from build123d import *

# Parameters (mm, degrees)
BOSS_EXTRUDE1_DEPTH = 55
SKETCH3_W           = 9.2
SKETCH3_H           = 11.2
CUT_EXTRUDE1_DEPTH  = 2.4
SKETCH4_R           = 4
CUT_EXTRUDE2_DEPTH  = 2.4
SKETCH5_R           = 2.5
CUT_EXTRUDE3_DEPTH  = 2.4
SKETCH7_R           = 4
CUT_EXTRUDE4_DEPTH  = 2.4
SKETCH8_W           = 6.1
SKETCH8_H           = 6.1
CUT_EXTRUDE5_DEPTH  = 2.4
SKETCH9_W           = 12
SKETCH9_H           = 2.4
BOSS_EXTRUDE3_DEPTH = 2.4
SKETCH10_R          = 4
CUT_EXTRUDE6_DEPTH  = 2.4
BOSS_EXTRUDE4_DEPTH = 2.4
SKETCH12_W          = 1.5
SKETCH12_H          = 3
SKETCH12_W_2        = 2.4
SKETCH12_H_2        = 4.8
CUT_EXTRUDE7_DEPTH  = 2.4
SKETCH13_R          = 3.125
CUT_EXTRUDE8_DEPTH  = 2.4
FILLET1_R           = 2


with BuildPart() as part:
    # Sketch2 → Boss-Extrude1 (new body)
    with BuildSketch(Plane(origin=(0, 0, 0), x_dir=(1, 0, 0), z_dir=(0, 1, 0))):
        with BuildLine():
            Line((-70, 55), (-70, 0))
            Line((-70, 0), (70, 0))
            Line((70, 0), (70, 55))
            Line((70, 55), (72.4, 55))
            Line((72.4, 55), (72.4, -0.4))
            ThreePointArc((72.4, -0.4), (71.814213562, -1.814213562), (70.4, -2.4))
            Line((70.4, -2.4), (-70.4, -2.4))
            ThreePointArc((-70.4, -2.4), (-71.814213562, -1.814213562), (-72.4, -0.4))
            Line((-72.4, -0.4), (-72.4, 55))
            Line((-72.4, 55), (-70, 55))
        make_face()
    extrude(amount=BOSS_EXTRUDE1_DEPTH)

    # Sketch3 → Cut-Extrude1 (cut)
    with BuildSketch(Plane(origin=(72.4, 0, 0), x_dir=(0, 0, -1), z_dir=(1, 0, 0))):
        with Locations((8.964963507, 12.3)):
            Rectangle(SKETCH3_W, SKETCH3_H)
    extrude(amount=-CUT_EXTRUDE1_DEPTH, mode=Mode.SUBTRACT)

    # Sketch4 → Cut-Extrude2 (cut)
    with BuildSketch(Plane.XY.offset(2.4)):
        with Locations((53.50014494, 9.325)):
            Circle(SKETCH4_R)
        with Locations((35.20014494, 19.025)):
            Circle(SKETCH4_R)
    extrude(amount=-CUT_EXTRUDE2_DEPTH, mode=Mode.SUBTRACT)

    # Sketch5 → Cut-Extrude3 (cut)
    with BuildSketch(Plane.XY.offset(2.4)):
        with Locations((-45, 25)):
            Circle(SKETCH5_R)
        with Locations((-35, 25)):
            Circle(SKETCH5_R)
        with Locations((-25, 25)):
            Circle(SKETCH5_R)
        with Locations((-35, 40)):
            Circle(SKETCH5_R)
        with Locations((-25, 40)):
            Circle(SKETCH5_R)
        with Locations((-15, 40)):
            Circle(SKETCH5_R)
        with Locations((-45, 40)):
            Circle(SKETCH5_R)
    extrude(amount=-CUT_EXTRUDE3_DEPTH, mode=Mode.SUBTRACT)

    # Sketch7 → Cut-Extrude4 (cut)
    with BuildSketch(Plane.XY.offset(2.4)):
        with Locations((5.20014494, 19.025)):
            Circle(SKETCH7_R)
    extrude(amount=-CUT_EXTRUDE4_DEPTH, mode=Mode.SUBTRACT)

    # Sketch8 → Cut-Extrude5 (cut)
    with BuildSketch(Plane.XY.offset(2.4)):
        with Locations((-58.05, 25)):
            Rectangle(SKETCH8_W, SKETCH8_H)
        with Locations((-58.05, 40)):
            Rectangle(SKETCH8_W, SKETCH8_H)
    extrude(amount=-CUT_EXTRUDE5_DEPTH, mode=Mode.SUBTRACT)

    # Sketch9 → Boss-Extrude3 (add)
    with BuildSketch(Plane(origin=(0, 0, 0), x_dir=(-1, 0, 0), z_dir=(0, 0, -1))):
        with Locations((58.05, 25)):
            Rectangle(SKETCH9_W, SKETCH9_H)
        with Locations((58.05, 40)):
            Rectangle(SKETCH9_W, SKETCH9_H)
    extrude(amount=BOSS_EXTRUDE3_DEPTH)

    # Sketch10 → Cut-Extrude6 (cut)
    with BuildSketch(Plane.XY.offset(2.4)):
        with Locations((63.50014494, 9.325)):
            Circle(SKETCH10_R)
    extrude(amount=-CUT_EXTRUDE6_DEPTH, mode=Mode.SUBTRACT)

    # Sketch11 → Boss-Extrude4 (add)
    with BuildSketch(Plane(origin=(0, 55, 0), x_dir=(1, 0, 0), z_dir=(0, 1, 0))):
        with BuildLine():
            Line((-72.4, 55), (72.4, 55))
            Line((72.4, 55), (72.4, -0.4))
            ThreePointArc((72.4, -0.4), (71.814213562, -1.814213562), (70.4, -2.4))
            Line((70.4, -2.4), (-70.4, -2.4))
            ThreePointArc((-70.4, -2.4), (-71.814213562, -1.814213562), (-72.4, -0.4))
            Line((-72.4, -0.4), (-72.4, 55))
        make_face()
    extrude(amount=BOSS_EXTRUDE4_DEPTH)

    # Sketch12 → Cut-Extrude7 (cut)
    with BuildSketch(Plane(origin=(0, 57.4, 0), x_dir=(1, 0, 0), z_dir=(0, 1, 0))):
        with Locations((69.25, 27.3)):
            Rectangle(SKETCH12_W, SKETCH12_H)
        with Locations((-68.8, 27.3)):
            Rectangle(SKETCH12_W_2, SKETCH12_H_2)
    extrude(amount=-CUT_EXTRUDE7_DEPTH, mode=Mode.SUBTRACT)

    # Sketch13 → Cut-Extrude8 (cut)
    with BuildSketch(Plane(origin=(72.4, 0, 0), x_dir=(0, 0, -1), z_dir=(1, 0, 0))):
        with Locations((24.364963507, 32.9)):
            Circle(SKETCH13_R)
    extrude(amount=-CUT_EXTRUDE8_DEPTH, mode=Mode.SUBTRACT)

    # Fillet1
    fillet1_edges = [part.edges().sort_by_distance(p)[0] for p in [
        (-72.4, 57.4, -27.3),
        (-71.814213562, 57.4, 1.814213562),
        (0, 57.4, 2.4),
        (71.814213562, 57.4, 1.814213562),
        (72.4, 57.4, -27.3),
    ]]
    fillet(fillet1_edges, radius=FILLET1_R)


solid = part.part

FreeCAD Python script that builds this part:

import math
import FreeCAD as App
import Part
import Sketcher
Q = App.Units.Quantity


def edges_at(feature, points):
    """Names of the edges that pass closest to the given points."""
    edges = feature.Shape.Edges
    near = lambda p: min(range(len(edges)), key=lambda i: edges[i].distToShape(Part.Vertex(*p))[0])
    return sorted({f"Edge{near(p) + 1}" for p in points})


def add_polygon(sketch, points):
    """Adds a closed chain of lines whose ends are joined by coincident constraints."""
    first, n = sketch.GeometryCount, len(points)
    for a, b in zip(points, points[1:] + points[:1]):
        sketch.addGeometry(Part.LineSegment(App.Vector(*a, 0), App.Vector(*b, 0)), False)
    for i in range(n):
        sketch.addConstraint(Sketcher.Constraint("Coincident", first + i, 2, first + (i + 1) % n, 1))

doc = App.newDocument("Part")
body = doc.addObject("PartDesign::Body", "Body")

sketch1 = body.newObject("Sketcher::SketchObject", "Sketch")
sketch1.AttachmentSupport = (doc.getObject("XZ_Plane"), [""])
sketch1.MapMode = "FlatFace"
sketch1.addGeometry(Part.LineSegment(App.Vector(-70, 0, 0), App.Vector(-70, -55, 0)), False)
sketch1.addGeometry(Part.LineSegment(App.Vector(-70, -55, 0), App.Vector(-72.4, -55, 0)), False)
sketch1.addGeometry(Part.LineSegment(App.Vector(-72.4, -55, 0), App.Vector(-72.4, 0.4, 0)), False)
sketch1.addGeometry(Part.ArcOfCircle(Part.Circle(App.Vector(-70.4, 0.4, 0), App.Vector(0, 0, 1), 2), math.radians(90), math.radians(180)), False)
sketch1.addGeometry(Part.LineSegment(App.Vector(-70.4, 2.4, 0), App.Vector(70.4, 2.4, 0)), False)
sketch1.addGeometry(Part.ArcOfCircle(Part.Circle(App.Vector(70.4, 0.4, 0), App.Vector(0, 0, 1), 2), math.radians(0), math.radians(90)), False)
sketch1.addGeometry(Part.LineSegment(App.Vector(72.4, 0.4, 0), App.Vector(72.4, -55, 0)), False)
sketch1.addGeometry(Part.LineSegment(App.Vector(72.4, -55, 0), App.Vector(70, -55, 0)), False)
sketch1.addGeometry(Part.LineSegment(App.Vector(70, -55, 0), App.Vector(70, 0, 0)), False)
sketch1.addGeometry(Part.LineSegment(App.Vector(70, 0, 0), App.Vector(-70, 0, 0)), False)
sketch1.addConstraint(Sketcher.Constraint("Coincident", 0, 2, 1, 1))
sketch1.addConstraint(Sketcher.Constraint("Coincident", 1, 2, 2, 1))
sketch1.addConstraint(Sketcher.Constraint("Tangent", 2, 2, 3, 2))
sketch1.addConstraint(Sketcher.Constraint("Tangent", 3, 1, 4, 1))
sketch1.addConstraint(Sketcher.Constraint("Tangent", 4, 2, 5, 2))
sketch1.addConstraint(Sketcher.Constraint("Tangent", 5, 1, 6, 1))
sketch1.addConstraint(Sketcher.Constraint("Coincident", 6, 2, 7, 1))
sketch1.addConstraint(Sketcher.Constraint("Coincident", 7, 2, 8, 1))
sketch1.addConstraint(Sketcher.Constraint("Coincident", 8, 2, 9, 1))
sketch1.addConstraint(Sketcher.Constraint("Coincident", 9, 2, 0, 1))
sketch1.addConstraint(Sketcher.Constraint("Vertical", 0))
sketch1.addConstraint(Sketcher.Constraint("Horizontal", 1))
sketch1.addConstraint(Sketcher.Constraint("Vertical", 2))
sketch1.addConstraint(Sketcher.Constraint("Horizontal", 4))
sketch1.addConstraint(Sketcher.Constraint("Vertical", 6))
sketch1.addConstraint(Sketcher.Constraint("Horizontal", 7))
sketch1.addConstraint(Sketcher.Constraint("Vertical", 8))
sketch1.addConstraint(Sketcher.Constraint("Horizontal", 9))
sketch1.addConstraint(Sketcher.Constraint("Equal", 3, 5))
sketch1.addConstraint(Sketcher.Constraint("Symmetric", 8, 2, 9, 2, -1, 1))
sketch1.addConstraint(Sketcher.Constraint("Symmetric", 1, 2, 6, 2, -2))
sketch1.addConstraint(Sketcher.Constraint("Radius", 3, Q("2 mm")))
sketch1.addConstraint(Sketcher.Constraint("DistanceX", 9, 2, 9, 1, Q("140 mm")))
sketch1.addConstraint(Sketcher.Constraint("DistanceY", 0, 2, 0, 1, Q("55 mm")))
sketch1.addConstraint(Sketcher.Constraint("DistanceX", 1, 2, 1, 1, Q("2.4 mm")))
sketch1.addConstraint(Sketcher.Constraint("DistanceY", 2, 1, 2, 2, Q("55.4 mm")))
pad1 = body.newObject("PartDesign::Pad", "Pad")
pad1.Profile = sketch1
pad1.Length = 55
pad1.Reversed = True

sketch2 = body.newObject("Sketcher::SketchObject", "Sketch001")
sketch2.AttachmentSupport = (doc.getObject("YZ_Plane"), [""])
sketch2.MapMode = "FlatFace"
sketch2.AttachmentOffset = App.Placement(App.Vector(0, 0, 72.4), App.Rotation())
add_polygon(sketch2, [(18, -4), (7, -4), (7, -14), (18, -14)])
sketch2.addConstraint(Sketcher.Constraint("Horizontal", 0))
sketch2.addConstraint(Sketcher.Constraint("Vertical", 1))
sketch2.addConstraint(Sketcher.Constraint("Horizontal", 2))
sketch2.addConstraint(Sketcher.Constraint("Vertical", 3))
sketch2.addConstraint(Sketcher.Constraint("DistanceX", 0, 2, 0, 1, Q("11.2 mm")))
sketch2.addConstraint(Sketcher.Constraint("DistanceY", 1, 2, 1, 1, Q("9.2 mm")))
sketch2.addConstraint(Sketcher.Constraint("DistanceX", -1, 1, 0, 2, Q("6.7 mm")))
sketch2.addConstraint(Sketcher.Constraint("DistanceY", 0, 2, -1, 1, Q("4.364964 mm")))
pocket1 = body.newObject("PartDesign::Pocket", "Pocket")
pocket1.Profile = sketch2
pocket1.Length = 2.4

sketch3 = body.newObject("Sketcher::SketchObject", "Sketch002")
sketch3.AttachmentSupport = (doc.getObject("XY_Plane"), [""])
sketch3.MapMode = "FlatFace"
sketch3.AttachmentOffset = App.Placement(App.Vector(0, 0, 2.4), App.Rotation())
sketch3.addGeometry(Part.Circle(App.Vector(53.5, 9.3, 0), App.Vector(0, 0, 1), 4), False)
sketch3.addGeometry(Part.Circle(App.Vector(35.2, 19, 0), App.Vector(0, 0, 1), 4), False)
sketch3.addConstraint(Sketcher.Constraint("Equal", 0, 1))
sketch3.addConstraint(Sketcher.Constraint("Diameter", 0, Q("8 mm")))
sketch3.addConstraint(Sketcher.Constraint("DistanceX", 1, 3, 0, 3, Q("18.3 mm")))
sketch3.addConstraint(Sketcher.Constraint("DistanceY", 0, 3, 1, 3, Q("9.7 mm")))
sketch3.addConstraint(Sketcher.Constraint("DistanceY", -1, 1, 0, 3, Q("9.325 mm")))
sketch3.addConstraint(Sketcher.Constraint("DistanceX", -1, 1, 0, 3, Q("53.500145 mm")))
pocket2 = body.newObject("PartDesign::Pocket", "Pocket001")
pocket2.Profile = sketch3
pocket2.Length = 2.4

sketch4 = body.newObject("Sketcher::SketchObject", "Sketch003")
sketch4.AttachmentSupport = (doc.getObject("XY_Plane"), [""])
sketch4.MapMode = "FlatFace"
sketch4.AttachmentOffset = App.Placement(App.Vector(0, 0, 2.4), App.Rotation())
sketch4.addGeometry(Part.Circle(App.Vector(-45, 25, 0), App.Vector(0, 0, 1), 2.5), False)
sketch4.addGeometry(Part.Circle(App.Vector(-35, 25, 0), App.Vector(0, 0, 1), 2.5), False)
sketch4.addGeometry(Part.Circle(App.Vector(-25, 25, 0), App.Vector(0, 0, 1), 2.5), False)
sketch4.addGeometry(Part.Circle(App.Vector(-35, 40, 0), App.Vector(0, 0, 1), 2.5), False)
sketch4.addGeometry(Part.Circle(App.Vector(-25, 40, 0), App.Vector(0, 0, 1), 2.5), False)
sketch4.addGeometry(Part.Circle(App.Vector(-15, 40, 0), App.Vector(0, 0, 1), 2.5), False)
sketch4.addGeometry(Part.Circle(App.Vector(-45, 40, 0), App.Vector(0, 0, 1), 2.5), False)
sketch4.addConstraint(Sketcher.Constraint("Equal", 0, 1))
sketch4.addConstraint(Sketcher.Constraint("Equal", 1, 2))
sketch4.addConstraint(Sketcher.Constraint("Equal", 2, 3))
sketch4.addConstraint(Sketcher.Constraint("Equal", 3, 4))
sketch4.addConstraint(Sketcher.Constraint("Equal", 4, 5))
sketch4.addConstraint(Sketcher.Constraint("Equal", 5, 6))
sketch4.addConstraint(Sketcher.Constraint("Horizontal", 0, 3, 1, 3))
sketch4.addConstraint(Sketcher.Constraint("Horizontal", 1, 3, 2, 3))
sketch4.addConstraint(Sketcher.Constraint("Horizontal", 3, 3, 4, 3))
sketch4.addConstraint(Sketcher.Constraint("Horizontal", 4, 3, 5, 3))
sketch4.addConstraint(Sketcher.Constraint("Horizontal", 5, 3, 6, 3))
sketch4.addConstraint(Sketcher.Constraint("Vertical", 1, 3, 3, 3))
sketch4.addConstraint(Sketcher.Constraint("Vertical", 2, 3, 4, 3))
sketch4.addConstraint(Sketcher.Constraint("Vertical", 0, 3, 6, 3))
sketch4.addConstraint(Sketcher.Constraint("Diameter", 0, Q("5 mm")))
sketch4.addConstraint(Sketcher.Constraint("DistanceX", 0, 3, -1, 1, Q("45 mm")))
sketch4.addConstraint(Sketcher.Constraint("DistanceY", -1, 1, 0, 3, Q("25 mm")))
sketch4.addConstraint(Sketcher.Constraint("DistanceX", 1, 3, -1, 1, Q("35 mm")))
sketch4.addConstraint(Sketcher.Constraint("DistanceX", 2, 3, -1, 1, Q("25 mm")))
sketch4.addConstraint(Sketcher.Constraint("DistanceY", -1, 1, 3, 3, Q("40 mm")))
sketch4.addConstraint(Sketcher.Constraint("DistanceX", 5, 3, -1, 1, Q("15 mm")))
pocket3 = body.newObject("PartDesign::Pocket", "Pocket002")
pocket3.Profile = sketch4
pocket3.Length = 2.4

sketch5 = body.newObject("Sketcher::SketchObject", "Sketch004")
sketch5.AttachmentSupport = (doc.getObject("XY_Plane"), [""])
sketch5.MapMode = "FlatFace"
sketch5.AttachmentOffset = App.Placement(App.Vector(0, 0, 2.4), App.Rotation())
sketch5.addGeometry(Part.Circle(App.Vector(5.2, 19, 0), App.Vector(0, 0, 1), 4), False)
sketch5.addConstraint(Sketcher.Constraint("Diameter", 0, Q("8 mm")))
sketch5.addConstraint(Sketcher.Constraint("DistanceY", -1, 1, 0, 3, Q("19.025 mm")))
sketch5.addConstraint(Sketcher.Constraint("DistanceX", -1, 1, 0, 3, Q("5.200145 mm")))
pocket4 = body.newObject("PartDesign::Pocket", "Pocket003")
pocket4.Profile = sketch5
pocket4.Length = 2.4

sketch6 = body.newObject("Sketcher::SketchObject", "Sketch005")
sketch6.AttachmentSupport = (doc.getObject("XY_Plane"), [""])
sketch6.MapMode = "FlatFace"
sketch6.AttachmentOffset = App.Placement(App.Vector(0, 0, 2.4), App.Rotation())
add_polygon(sketch6, [(-61, 28), (-61, 22), (-55, 22), (-55, 28)])
add_polygon(sketch6, [(-61, 43), (-61, 37), (-55, 37), (-55, 43)])
sketch6.addConstraint(Sketcher.Constraint("Vertical", 0))
sketch6.addConstraint(Sketcher.Constraint("Horizontal", 1))
sketch6.addConstraint(Sketcher.Constraint("Vertical", 2))
sketch6.addConstraint(Sketcher.Constraint("Horizontal", 3))
sketch6.addConstraint(Sketcher.Constraint("Vertical", 4))
sketch6.addConstraint(Sketcher.Constraint("Horizontal", 5))
sketch6.addConstraint(Sketcher.Constraint("Vertical", 6))
sketch6.addConstraint(Sketcher.Constraint("Horizontal", 7))
sketch6.addConstraint(Sketcher.Constraint("Vertical", 3, 2, 4, 2))
sketch6.addConstraint(Sketcher.Constraint("Vertical", 2, 2, 5, 2))
sketch6.addConstraint(Sketcher.Constraint("Equal", 7, 0))
sketch6.addConstraint(Sketcher.Constraint("Equal", 2, 4))
sketch6.addConstraint(Sketcher.Constraint("DistanceX", 1, 1, 1, 2, Q("6.1 mm")))
sketch6.addConstraint(Sketcher.Constraint("DistanceX", 1, 2, -1, 1, Q("55 mm")))
sketch6.addConstraint(Sketcher.Constraint("DistanceY", 0, 2, 4, 2, Q("15 mm")))
sketch6.addConstraint(Sketcher.Constraint("DistanceY", -1, 1, 0, 2, Q("21.95 mm")))
pocket5 = body.newObject("PartDesign::Pocket", "Pocket004")
pocket5.Profile = sketch6
pocket5.Length = 2.4

sketch7 = body.newObject("Sketcher::SketchObject", "Sketch006")
sketch7.AttachmentSupport = (doc.getObject("XY_Plane"), [""])
sketch7.MapMode = "FlatFace"
add_polygon(sketch7, [(-52, 26.2), (-52, 23.8), (-64, 23.8), (-64, 26.2)])
add_polygon(sketch7, [(-52, 41.2), (-52, 38.8), (-64, 38.8), (-64, 41.2)])
sketch7.addConstraint(Sketcher.Constraint("Vertical", 0))
sketch7.addConstraint(Sketcher.Constraint("Horizontal", 1))
sketch7.addConstraint(Sketcher.Constraint("Vertical", 2))
sketch7.addConstraint(Sketcher.Constraint("Horizontal", 3))
sketch7.addConstraint(Sketcher.Constraint("Vertical", 4))
sketch7.addConstraint(Sketcher.Constraint("Horizontal", 5))
sketch7.addConstraint(Sketcher.Constraint("Vertical", 6))
sketch7.addConstraint(Sketcher.Constraint("Horizontal", 7))
sketch7.addConstraint(Sketcher.Constraint("Vertical", 3, 2, 4, 2))
sketch7.addConstraint(Sketcher.Constraint("Vertical", 2, 2, 5, 2))
sketch7.addConstraint(Sketcher.Constraint("Equal", 2, 4))
sketch7.addConstraint(Sketcher.Constraint("DistanceX", 1, 2, 1, 1, Q("12 mm")))
sketch7.addConstraint(Sketcher.Constraint("DistanceY", 0, 2, 0, 1, Q("2.4 mm")))
sketch7.addConstraint(Sketcher.Constraint("DistanceY", 0, 2, 4, 2, Q("15 mm")))
sketch7.addConstraint(Sketcher.Constraint("DistanceY", -1, 1, 0, 2, Q("23.8 mm")))
sketch7.addConstraint(Sketcher.Constraint("DistanceX", 0, 2, -1, 1, Q("52.05 mm")))
pad2 = body.newObject("PartDesign::Pad", "Pad001")
pad2.Profile = sketch7
pad2.Length = 2.4
pad2.Reversed = True

sketch8 = body.newObject("Sketcher::SketchObject", "Sketch007")
sketch8.AttachmentSupport = (doc.getObject("XY_Plane"), [""])
sketch8.MapMode = "FlatFace"
sketch8.AttachmentOffset = App.Placement(App.Vector(0, 0, 2.4), App.Rotation())
sketch8.addGeometry(Part.Circle(App.Vector(63.5, 9.3, 0), App.Vector(0, 0, 1), 4), False)
sketch8.addConstraint(Sketcher.Constraint("Diameter", 0, Q("8 mm")))
sketch8.addConstraint(Sketcher.Constraint("DistanceY", -1, 1, 0, 3, Q("9.325 mm")))
sketch8.addConstraint(Sketcher.Constraint("DistanceX", -1, 1, 0, 3, Q("63.500145 mm")))
pocket6 = body.newObject("PartDesign::Pocket", "Pocket005")
pocket6.Profile = sketch8
pocket6.Length = 2.4

sketch9 = body.newObject("Sketcher::SketchObject", "Sketch008")
sketch9.AttachmentSupport = (doc.getObject("XZ_Plane"), [""])
sketch9.MapMode = "FlatFace"
sketch9.AttachmentOffset = App.Placement(App.Vector(0, 0, -55), App.Rotation())
sketch9.addGeometry(Part.LineSegment(App.Vector(72.4, -55, 0), App.Vector(-72.4, -55, 0)), False)
sketch9.addGeometry(Part.LineSegment(App.Vector(-72.4, -55, 0), App.Vector(-72.4, 0.4, 0)), False)
sketch9.addGeometry(Part.ArcOfCircle(Part.Circle(App.Vector(-70.4, 0.4, 0), App.Vector(0, 0, 1), 2), math.radians(90), math.radians(180)), False)
sketch9.addGeometry(Part.LineSegment(App.Vector(-70.4, 2.4, 0), App.Vector(70.4, 2.4, 0)), False)
sketch9.addGeometry(Part.ArcOfCircle(Part.Circle(App.Vector(70.4, 0.4, 0), App.Vector(0, 0, 1), 2), math.radians(0), math.radians(90)), False)
sketch9.addGeometry(Part.LineSegment(App.Vector(72.4, 0.4, 0), App.Vector(72.4, -55, 0)), False)
sketch9.addConstraint(Sketcher.Constraint("Coincident", 0, 2, 1, 1))
sketch9.addConstraint(Sketcher.Constraint("Tangent", 1, 2, 2, 2))
sketch9.addConstraint(Sketcher.Constraint("Tangent", 2, 1, 3, 1))
sketch9.addConstraint(Sketcher.Constraint("Tangent", 3, 2, 4, 2))
sketch9.addConstraint(Sketcher.Constraint("Tangent", 4, 1, 5, 1))
sketch9.addConstraint(Sketcher.Constraint("Coincident", 5, 2, 0, 1))
sketch9.addConstraint(Sketcher.Constraint("Horizontal", 0))
sketch9.addConstraint(Sketcher.Constraint("Vertical", 1))
sketch9.addConstraint(Sketcher.Constraint("Horizontal", 3))
sketch9.addConstraint(Sketcher.Constraint("Vertical", 5))
sketch9.addConstraint(Sketcher.Constraint("Equal", 2, 4))
sketch9.addConstraint(Sketcher.Constraint("Radius", 2, Q("2 mm")))
sketch9.addConstraint(Sketcher.Constraint("DistanceX", 0, 2, 0, 1, Q("144.8 mm")))
sketch9.addConstraint(Sketcher.Constraint("DistanceY", 1, 1, 1, 2, Q("55.4 mm")))
sketch9.addConstraint(Sketcher.Constraint("DistanceY", 0, 2, -1, 1, Q("55 mm")))
sketch9.addConstraint(Sketcher.Constraint("DistanceX", 2, 3, -1, 1, Q("70.4 mm")))
pad3 = body.newObject("PartDesign::Pad", "Pad002")
pad3.Profile = sketch9
pad3.Length = 2.4
pad3.Reversed = True

sketch10 = body.newObject("Sketcher::SketchObject", "Sketch009")
sketch10.AttachmentSupport = (doc.getObject("XZ_Plane"), [""])
sketch10.MapMode = "FlatFace"
sketch10.AttachmentOffset = App.Placement(App.Vector(0, 0, -57.4), App.Rotation())
add_polygon(sketch10, [(68.5, -28.8), (68.5, -25.8), (70, -25.8), (70, -28.8)])
add_polygon(sketch10, [(-70, -29.7), (-70, -24.9), (-67.6, -24.9), (-67.6, -29.7)])
sketch10.addConstraint(Sketcher.Constraint("Vertical", 0))
sketch10.addConstraint(Sketcher.Constraint("Horizontal", 1))
sketch10.addConstraint(Sketcher.Constraint("Vertical", 2))
sketch10.addConstraint(Sketcher.Constraint("Horizontal", 3))
sketch10.addConstraint(Sketcher.Constraint("Vertical", 4))
sketch10.addConstraint(Sketcher.Constraint("Horizontal", 5))
sketch10.addConstraint(Sketcher.Constraint("Vertical", 6))
sketch10.addConstraint(Sketcher.Constraint("Horizontal", 7))
sketch10.addConstraint(Sketcher.Constraint("DistanceY", 0, 1, 0, 2, Q("3 mm")))
sketch10.addConstraint(Sketcher.Constraint("DistanceX", 1, 1, 1, 2, Q("1.5 mm")))
sketch10.addConstraint(Sketcher.Constraint("DistanceX", 5, 1, 5, 2, Q("2.4 mm")))
sketch10.addConstraint(Sketcher.Constraint("DistanceY", 4, 1, 4, 2, Q("4.8 mm")))
sketch10.addConstraint(Sketcher.Constraint("DistanceX", -1, 1, 1, 2, Q("70 mm")))
sketch10.addConstraint(Sketcher.Constraint("DistanceX", 4, 2, -1, 1, Q("70 mm")))
sketch10.addConstraint(Sketcher.Constraint("DistanceY", 0, 2, -1, 1, Q("25.8 mm")))
sketch10.addConstraint(Sketcher.Constraint("DistanceY", 4, 2, -1, 1, Q("24.9 mm")))
pocket7 = body.newObject("PartDesign::Pocket", "Pocket006")
pocket7.Profile = sketch10
pocket7.Length = 2.4
pocket7.Reversed = True

sketch11 = body.newObject("Sketcher::SketchObject", "Sketch010")
sketch11.AttachmentSupport = (doc.getObject("YZ_Plane"), [""])
sketch11.MapMode = "FlatFace"
sketch11.AttachmentOffset = App.Placement(App.Vector(0, 0, 72.4), App.Rotation())
sketch11.addGeometry(Part.Circle(App.Vector(32.9, -24.4, 0), App.Vector(0, 0, 1), 3.1), False)
sketch11.addConstraint(Sketcher.Constraint("Diameter", 0, Q("6.25 mm")))
sketch11.addConstraint(Sketcher.Constraint("DistanceX", -1, 1, 0, 3, Q("32.9 mm")))
sketch11.addConstraint(Sketcher.Constraint("DistanceY", 0, 3, -1, 1, Q("24.364964 mm")))
pocket8 = body.newObject("PartDesign::Pocket", "Pocket007")
pocket8.Profile = sketch11
pocket8.Length = 2.4
doc.recompute()

fillet = body.newObject("PartDesign::Fillet", "Fillet")
fillet.Base = (pocket8, edges_at(pocket8, [
    (-72.4, 57.4, -27.3),
    (-71.814, 57.4, 1.814),
    (0, 57.4, 2.4),
    (71.814, 57.4, 1.814),
    (72.4, 57.4, -27.3),
]))
fillet.Radius = 2

doc.recompute()
